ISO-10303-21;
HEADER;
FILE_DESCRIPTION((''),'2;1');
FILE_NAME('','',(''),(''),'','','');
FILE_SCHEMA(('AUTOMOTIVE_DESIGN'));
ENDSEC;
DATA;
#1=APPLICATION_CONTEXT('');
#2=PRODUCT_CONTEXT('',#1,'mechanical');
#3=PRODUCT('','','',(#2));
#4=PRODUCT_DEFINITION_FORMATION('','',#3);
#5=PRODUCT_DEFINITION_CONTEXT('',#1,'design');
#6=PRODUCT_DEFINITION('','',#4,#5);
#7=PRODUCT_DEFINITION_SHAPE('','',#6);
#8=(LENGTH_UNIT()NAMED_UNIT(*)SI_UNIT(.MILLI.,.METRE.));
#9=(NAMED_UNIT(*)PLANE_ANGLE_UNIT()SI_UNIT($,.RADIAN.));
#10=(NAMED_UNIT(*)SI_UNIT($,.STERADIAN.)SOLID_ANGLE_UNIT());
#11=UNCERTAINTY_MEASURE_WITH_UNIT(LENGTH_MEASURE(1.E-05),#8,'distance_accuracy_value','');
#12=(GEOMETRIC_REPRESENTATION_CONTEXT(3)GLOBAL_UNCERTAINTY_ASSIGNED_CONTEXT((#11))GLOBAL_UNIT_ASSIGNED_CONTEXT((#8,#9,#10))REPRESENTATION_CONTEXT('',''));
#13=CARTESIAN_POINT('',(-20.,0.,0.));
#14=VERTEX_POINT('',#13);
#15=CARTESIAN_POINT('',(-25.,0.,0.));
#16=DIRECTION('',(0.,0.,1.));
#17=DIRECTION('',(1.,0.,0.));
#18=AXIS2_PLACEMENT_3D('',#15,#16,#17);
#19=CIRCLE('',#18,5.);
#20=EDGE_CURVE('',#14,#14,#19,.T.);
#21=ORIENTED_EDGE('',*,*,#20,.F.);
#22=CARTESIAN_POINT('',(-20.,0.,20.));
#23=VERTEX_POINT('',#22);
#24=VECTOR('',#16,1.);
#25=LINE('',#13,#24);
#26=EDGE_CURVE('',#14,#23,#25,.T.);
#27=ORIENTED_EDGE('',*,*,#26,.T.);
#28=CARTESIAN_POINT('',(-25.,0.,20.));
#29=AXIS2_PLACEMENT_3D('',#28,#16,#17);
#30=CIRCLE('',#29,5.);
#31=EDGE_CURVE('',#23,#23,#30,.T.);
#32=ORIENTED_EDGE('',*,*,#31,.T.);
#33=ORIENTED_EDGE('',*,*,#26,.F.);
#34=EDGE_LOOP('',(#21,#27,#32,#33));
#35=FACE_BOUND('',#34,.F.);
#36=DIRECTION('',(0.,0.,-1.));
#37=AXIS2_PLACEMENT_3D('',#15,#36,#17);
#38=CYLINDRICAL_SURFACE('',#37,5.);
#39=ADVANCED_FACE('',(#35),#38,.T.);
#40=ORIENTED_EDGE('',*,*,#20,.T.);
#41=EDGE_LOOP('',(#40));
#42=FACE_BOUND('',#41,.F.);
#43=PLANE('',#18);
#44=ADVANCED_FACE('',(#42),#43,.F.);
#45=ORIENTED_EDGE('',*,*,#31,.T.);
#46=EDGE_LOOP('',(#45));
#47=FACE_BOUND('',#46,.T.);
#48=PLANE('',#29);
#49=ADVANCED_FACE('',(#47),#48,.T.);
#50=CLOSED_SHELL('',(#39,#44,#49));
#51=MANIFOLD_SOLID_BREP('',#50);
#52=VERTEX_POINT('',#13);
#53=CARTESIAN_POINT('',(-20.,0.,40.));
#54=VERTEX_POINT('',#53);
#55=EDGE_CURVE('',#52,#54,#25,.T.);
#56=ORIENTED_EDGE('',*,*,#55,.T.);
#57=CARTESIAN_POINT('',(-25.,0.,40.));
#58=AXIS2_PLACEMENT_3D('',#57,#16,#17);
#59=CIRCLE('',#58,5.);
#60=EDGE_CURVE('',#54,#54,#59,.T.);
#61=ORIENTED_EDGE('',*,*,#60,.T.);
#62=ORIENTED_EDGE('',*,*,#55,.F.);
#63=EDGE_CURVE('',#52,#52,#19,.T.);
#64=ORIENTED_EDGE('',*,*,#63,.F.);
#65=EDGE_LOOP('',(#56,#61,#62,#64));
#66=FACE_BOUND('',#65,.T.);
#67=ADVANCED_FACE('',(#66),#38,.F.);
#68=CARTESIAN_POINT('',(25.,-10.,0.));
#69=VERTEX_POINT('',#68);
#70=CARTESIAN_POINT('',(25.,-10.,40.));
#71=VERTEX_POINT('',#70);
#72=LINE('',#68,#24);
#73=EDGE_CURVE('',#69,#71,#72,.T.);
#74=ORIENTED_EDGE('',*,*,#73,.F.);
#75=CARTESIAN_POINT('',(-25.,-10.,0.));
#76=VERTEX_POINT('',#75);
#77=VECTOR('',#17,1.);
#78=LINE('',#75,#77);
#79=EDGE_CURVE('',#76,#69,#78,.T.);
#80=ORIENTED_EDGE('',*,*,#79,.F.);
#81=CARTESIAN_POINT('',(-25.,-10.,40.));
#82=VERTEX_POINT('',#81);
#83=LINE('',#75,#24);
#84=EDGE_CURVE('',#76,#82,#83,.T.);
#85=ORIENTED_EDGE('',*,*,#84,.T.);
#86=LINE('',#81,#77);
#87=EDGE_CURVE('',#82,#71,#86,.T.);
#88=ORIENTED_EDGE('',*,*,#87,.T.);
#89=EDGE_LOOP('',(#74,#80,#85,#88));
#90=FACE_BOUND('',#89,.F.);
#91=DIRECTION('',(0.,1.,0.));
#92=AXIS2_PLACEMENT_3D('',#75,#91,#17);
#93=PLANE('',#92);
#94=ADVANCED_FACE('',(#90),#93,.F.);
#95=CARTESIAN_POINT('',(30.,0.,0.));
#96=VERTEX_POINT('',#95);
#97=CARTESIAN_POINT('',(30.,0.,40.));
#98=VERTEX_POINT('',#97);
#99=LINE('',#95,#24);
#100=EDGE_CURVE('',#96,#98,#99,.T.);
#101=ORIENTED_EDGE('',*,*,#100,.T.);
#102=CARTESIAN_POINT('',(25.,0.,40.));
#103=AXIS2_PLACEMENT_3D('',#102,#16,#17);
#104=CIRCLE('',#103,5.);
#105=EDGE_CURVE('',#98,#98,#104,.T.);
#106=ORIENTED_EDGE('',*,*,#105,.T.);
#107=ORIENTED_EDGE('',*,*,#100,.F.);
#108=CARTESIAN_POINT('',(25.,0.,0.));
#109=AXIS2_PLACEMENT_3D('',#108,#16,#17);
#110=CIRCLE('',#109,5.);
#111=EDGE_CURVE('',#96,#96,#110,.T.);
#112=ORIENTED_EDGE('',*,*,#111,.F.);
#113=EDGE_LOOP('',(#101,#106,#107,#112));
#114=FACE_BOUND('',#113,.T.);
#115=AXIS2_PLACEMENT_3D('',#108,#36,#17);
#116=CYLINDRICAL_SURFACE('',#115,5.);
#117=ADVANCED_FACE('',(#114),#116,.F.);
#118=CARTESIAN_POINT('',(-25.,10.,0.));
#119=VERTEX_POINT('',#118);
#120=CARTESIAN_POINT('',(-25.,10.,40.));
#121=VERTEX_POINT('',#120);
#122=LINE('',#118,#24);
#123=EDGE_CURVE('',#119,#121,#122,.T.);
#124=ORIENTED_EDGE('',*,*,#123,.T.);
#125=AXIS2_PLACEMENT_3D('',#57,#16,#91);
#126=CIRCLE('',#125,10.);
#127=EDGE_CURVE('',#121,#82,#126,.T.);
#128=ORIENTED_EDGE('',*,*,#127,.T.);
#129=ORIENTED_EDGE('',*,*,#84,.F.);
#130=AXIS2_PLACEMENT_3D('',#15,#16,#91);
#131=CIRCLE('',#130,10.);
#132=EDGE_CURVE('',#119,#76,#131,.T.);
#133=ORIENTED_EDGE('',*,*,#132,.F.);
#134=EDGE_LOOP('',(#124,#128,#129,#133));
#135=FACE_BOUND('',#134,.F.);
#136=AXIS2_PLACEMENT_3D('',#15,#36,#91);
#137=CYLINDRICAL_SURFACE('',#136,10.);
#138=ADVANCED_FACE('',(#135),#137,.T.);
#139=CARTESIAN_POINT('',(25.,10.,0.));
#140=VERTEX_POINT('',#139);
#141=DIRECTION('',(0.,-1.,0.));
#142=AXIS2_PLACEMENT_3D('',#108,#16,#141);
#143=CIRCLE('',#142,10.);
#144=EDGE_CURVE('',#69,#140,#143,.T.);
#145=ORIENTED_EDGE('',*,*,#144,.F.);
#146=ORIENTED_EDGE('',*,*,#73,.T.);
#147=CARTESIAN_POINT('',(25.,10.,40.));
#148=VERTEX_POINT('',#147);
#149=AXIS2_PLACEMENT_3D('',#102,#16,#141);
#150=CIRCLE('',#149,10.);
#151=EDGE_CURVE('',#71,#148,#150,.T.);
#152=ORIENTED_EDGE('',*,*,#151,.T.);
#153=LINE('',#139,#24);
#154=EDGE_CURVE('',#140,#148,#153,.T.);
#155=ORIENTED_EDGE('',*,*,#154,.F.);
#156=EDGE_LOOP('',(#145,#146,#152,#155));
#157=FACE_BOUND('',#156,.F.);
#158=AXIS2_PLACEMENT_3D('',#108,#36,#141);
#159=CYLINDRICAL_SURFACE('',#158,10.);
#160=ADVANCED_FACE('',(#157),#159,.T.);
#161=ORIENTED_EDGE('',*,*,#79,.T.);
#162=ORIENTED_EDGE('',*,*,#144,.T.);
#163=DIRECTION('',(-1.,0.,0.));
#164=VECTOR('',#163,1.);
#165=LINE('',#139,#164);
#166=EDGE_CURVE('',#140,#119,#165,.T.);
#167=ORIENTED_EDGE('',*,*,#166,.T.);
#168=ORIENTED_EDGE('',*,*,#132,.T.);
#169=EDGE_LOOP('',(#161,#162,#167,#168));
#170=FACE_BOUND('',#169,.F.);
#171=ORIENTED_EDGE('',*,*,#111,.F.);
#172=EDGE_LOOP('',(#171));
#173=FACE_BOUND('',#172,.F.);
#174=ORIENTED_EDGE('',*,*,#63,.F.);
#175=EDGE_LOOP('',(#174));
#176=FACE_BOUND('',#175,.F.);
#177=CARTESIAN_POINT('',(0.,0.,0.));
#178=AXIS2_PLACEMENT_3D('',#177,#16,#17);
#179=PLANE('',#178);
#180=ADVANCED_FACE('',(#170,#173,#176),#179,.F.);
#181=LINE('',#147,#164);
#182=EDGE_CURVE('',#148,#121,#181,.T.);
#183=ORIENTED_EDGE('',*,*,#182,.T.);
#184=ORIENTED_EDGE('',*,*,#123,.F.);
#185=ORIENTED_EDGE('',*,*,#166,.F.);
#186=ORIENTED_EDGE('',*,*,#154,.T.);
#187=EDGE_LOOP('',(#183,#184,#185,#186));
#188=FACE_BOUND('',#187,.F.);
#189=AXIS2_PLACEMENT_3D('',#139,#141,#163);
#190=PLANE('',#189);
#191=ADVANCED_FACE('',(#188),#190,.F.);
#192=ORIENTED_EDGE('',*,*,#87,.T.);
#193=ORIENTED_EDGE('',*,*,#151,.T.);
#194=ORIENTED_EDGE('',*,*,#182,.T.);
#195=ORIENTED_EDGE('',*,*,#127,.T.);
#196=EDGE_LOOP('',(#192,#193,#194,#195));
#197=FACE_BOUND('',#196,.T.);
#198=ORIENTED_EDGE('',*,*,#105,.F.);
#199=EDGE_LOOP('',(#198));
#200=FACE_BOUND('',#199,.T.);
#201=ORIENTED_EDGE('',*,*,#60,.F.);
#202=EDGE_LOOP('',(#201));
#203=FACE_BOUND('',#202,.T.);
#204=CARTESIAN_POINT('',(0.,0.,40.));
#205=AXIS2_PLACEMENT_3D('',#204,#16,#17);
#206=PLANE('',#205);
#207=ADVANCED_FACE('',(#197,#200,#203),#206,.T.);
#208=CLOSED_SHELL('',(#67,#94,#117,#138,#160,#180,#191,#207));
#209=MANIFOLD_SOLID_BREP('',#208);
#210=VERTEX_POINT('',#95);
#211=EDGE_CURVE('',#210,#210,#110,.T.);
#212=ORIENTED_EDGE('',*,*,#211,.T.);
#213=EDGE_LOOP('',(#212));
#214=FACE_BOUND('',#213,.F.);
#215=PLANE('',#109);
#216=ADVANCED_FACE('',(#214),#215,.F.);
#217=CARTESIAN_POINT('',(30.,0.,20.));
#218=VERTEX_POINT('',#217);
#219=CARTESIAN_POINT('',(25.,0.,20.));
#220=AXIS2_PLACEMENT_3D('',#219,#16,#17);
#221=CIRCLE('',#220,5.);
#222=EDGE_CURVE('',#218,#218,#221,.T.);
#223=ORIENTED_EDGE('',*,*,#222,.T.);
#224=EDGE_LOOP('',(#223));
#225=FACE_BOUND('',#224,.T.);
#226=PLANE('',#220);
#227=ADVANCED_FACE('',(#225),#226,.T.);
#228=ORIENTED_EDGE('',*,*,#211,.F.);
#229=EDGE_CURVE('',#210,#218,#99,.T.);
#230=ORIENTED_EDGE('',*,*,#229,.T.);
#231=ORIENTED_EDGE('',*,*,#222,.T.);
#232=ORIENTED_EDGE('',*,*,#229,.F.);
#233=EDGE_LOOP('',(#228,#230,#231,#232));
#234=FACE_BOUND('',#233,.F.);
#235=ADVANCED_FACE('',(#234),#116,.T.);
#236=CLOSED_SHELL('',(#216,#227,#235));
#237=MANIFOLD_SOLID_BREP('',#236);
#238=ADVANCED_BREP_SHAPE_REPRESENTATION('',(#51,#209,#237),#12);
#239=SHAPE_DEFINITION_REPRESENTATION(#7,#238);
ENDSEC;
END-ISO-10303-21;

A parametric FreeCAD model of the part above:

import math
import FreeCAD as App
import Part
import Sketcher

doc = App.newDocument("Part")
body = doc.addObject("PartDesign::Body", "Body")

sketch1 = body.newObject("Sketcher::SketchObject", "Sketch")
sketch1.AttachmentSupport = (doc.getObject("XY_Plane"), [""])
sketch1.MapMode = "FlatFace"
sketch1.addGeometry(Part.Circle(App.Vector(25, 0, 0), App.Vector(0, 0, 1), 5), False)
sketch1.addConstraint(Sketcher.Constraint("PointOnObject", 0, 3, -1))
sketch1.addConstraint(Sketcher.Constraint("Diameter", 0, 10.0))
sketch1.addConstraint(Sketcher.Constraint("DistanceX", -1, 1, 0, 3, 25.0))
pad1 = body.newObject("PartDesign::Pad", "Pad")
pad1.Profile = sketch1
pad1.Length = 20
body2 = doc.addObject("PartDesign::Body", "Body001")

sketch2 = body2.newObject("Sketcher::SketchObject", "Sketch001")
sketch2.AttachmentSupport = (doc.getObject("XY_Plane001"), [""])
sketch2.MapMode = "FlatFace"
sketch2.addGeometry(Part.Circle(App.Vector(-25, 0, 0), App.Vector(0, 0, 1), 5), False)
sketch2.addConstraint(Sketcher.Constraint("PointOnObject", 0, 3, -1))
sketch2.addConstraint(Sketcher.Constraint("Diameter", 0, 10.0))
sketch2.addConstraint(Sketcher.Constraint("DistanceX", 0, 3, -1, 1, 25.0))
pad2 = body2.newObject("PartDesign::Pad", "Pad001")
pad2.Profile = sketch2
pad2.Length = 20
body3 = doc.addObject("PartDesign::Body", "Body002")

sketch3 = body3.newObject("Sketcher::SketchObject", "Sketch002")
sketch3.AttachmentSupport = (doc.getObject("XY_Plane002"), [""])
sketch3.MapMode = "FlatFace"
sketch3.addGeometry(Part.ArcOfCircle(Part.Circle(App.Vector(-25, 0, 0), App.Vector(0, 0, 1), 10), math.radians(90), math.radians(270)), False)
sketch3.addGeometry(Part.LineSegment(App.Vector(-25, -10, 0), App.Vector(25, -10, 0)), False)
sketch3.addGeometry(Part.ArcOfCircle(Part.Circle(App.Vector(25, 0, 0), App.Vector(0, 0, 1), 10), math.radians(-90), math.radians(90)), False)
sketch3.addGeometry(Part.LineSegment(App.Vector(25, 10, 0), App.Vector(-25, 10, 0)), False)
sketch3.addGeometry(Part.Circle(App.Vector(-25, 0, 0), App.Vector(0, 0, 1), 5), False)
sketch3.addGeometry(Part.Circle(App.Vector(25, 0, 0), App.Vector(0, 0, 1), 5), False)
sketch3.addConstraint(Sketcher.Constraint("Tangent", 0, 2, 1, 1))
sketch3.addConstraint(Sketcher.Constraint("Tangent", 1, 2, 2, 1))
sketch3.addConstraint(Sketcher.Constraint("Tangent", 2, 2, 3, 1))
sketch3.addConstraint(Sketcher.Constraint("Tangent", 3, 2, 0, 1))
sketch3.addConstraint(Sketcher.Constraint("Horizontal", 1))
sketch3.addConstraint(Sketcher.Constraint("Horizontal", 3))
sketch3.addConstraint(Sketcher.Constraint("Coincident", 4, 3, 0, 3))
sketch3.addConstraint(Sketcher.Constraint("Coincident", 5, 3, 2, 3))
sketch3.addConstraint(Sketcher.Constraint("Equal", 4, 5))
sketch3.addConstraint(Sketcher.Constraint("Symmetric", 0, 3, 2, 3, -1, 1))
sketch3.addConstraint(Sketcher.Constraint("Diameter", 4, 10.0))
sketch3.addConstraint(Sketcher.Constraint("Radius", 0, 10.0))
sketch3.addConstraint(Sketcher.Constraint("DistanceX", 1, 1, 1, 2, 50.0))
pad3 = body3.newObject("PartDesign::Pad", "Pad002")
pad3.Profile = sketch3
pad3.Length = 40

doc.recompute()
